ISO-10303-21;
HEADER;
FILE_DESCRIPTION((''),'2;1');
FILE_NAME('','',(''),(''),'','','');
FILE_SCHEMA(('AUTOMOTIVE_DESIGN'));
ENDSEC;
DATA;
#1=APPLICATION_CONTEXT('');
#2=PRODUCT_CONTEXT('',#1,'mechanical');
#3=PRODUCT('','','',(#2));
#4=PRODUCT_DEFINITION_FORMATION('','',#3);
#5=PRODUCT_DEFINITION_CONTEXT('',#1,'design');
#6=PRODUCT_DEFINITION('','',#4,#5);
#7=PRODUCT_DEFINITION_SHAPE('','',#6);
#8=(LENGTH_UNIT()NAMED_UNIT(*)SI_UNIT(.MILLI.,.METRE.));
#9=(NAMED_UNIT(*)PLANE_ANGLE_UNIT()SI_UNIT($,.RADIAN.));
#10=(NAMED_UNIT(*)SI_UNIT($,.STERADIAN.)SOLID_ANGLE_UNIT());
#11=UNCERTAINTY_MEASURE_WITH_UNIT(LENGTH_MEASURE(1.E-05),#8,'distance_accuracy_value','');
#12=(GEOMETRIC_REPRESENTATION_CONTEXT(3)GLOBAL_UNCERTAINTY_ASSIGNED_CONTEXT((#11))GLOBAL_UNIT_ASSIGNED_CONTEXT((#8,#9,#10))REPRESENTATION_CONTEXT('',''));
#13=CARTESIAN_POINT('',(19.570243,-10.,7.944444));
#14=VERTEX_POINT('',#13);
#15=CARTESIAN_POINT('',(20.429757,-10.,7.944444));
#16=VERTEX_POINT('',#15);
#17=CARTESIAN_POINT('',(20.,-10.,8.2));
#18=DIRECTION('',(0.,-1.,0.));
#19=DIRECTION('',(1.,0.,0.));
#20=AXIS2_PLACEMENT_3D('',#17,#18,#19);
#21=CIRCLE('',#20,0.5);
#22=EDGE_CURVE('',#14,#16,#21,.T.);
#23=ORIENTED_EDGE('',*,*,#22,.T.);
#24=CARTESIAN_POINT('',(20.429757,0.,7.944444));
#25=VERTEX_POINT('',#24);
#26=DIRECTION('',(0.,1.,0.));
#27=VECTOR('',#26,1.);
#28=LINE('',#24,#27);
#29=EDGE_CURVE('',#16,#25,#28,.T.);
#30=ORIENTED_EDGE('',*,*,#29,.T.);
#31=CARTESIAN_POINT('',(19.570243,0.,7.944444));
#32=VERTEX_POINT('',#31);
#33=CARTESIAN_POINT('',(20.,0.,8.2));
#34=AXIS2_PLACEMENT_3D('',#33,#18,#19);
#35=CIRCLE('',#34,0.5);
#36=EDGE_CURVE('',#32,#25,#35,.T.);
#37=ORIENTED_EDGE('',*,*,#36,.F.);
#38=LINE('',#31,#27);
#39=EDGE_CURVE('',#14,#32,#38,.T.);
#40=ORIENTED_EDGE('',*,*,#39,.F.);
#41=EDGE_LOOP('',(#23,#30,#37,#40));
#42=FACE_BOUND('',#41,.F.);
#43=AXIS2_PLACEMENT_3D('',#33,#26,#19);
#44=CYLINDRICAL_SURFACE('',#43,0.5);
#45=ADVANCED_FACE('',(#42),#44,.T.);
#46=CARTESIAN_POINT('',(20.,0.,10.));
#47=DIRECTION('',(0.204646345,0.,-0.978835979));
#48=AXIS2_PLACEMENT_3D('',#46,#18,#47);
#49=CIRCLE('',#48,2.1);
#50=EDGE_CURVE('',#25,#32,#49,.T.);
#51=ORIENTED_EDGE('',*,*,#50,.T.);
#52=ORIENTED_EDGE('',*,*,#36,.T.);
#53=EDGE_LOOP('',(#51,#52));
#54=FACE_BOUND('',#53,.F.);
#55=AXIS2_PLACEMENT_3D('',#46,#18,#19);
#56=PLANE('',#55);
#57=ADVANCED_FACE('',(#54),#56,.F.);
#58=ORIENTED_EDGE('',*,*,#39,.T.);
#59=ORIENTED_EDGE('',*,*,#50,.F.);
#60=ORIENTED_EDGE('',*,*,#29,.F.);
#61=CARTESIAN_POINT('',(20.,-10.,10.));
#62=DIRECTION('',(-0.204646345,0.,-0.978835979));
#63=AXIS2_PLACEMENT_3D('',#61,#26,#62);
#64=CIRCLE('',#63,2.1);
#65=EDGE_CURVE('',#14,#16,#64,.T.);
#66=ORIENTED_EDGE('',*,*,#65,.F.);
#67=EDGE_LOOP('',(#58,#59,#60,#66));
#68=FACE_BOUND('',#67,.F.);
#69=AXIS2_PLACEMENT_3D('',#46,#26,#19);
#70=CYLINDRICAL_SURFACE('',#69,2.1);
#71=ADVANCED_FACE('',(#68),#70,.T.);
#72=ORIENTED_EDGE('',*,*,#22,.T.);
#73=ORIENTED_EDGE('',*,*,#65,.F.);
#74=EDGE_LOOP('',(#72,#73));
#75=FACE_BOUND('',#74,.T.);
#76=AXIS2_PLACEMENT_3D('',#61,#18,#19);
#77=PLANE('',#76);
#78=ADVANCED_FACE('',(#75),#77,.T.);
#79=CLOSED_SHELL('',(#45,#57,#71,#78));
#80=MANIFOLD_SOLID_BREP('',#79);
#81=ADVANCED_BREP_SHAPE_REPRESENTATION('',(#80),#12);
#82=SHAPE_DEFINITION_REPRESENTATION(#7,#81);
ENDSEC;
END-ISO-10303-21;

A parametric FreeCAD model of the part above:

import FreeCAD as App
import Part
import Sketcher

doc = App.newDocument("Part")
params = doc.addObject("Spreadsheet::Sheet", "Params")
for row, (alias, value) in enumerate([
    ("sketch1_diameter", "4.2 mm"),
    ("pad1_length", "10 mm"),
    ("sketch2_diameter", "1 mm"),
    ("pad2_length", "10 mm"),
], start=1):
    params.set(f"A{row}", alias)
    params.set(f"B{row}", "=" + value)
    params.setAlias(f"B{row}", alias)

body = doc.addObject("PartDesign::Body", "Body")

sketch1 = body.newObject("Sketcher::SketchObject", "Sketch")
sketch1.AttachmentSupport = (doc.getObject("XZ_Plane"), [""])
sketch1.MapMode = "FlatFace"
sketch1.addGeometry(Part.Circle(App.Vector(10, 10, 0), App.Vector(0, 0, 1), 2.1), False)
sketch1.addConstraint(Sketcher.Constraint("Diameter", 0, 4.2))
sketch1.addConstraint(Sketcher.Constraint("DistanceX", -1, 1, 0, 3, 10.0))
sketch1.addConstraint(Sketcher.Constraint("DistanceY", -1, 1, 0, 3, 10.0))
sketch1.setExpression("Constraints[0]", "Params.sketch1_diameter")
pad1 = body.newObject("PartDesign::Pad", "Pad")
pad1.Profile = sketch1
pad1.setExpression("Length", "Params.pad1_length")
body2 = doc.addObject("PartDesign::Body", "Body001")

sketch2 = body2.newObject("Sketcher::SketchObject", "Sketch001")
sketch2.AttachmentSupport = (doc.getObject("XZ_Plane001"), [""])
sketch2.MapMode = "FlatFace"
sketch2.addGeometry(Part.Circle(App.Vector(10, 8.2, 0), App.Vector(0, 0, 1), 0.5), False)
sketch2.addConstraint(Sketcher.Constraint("Diameter", 0, 1.0))
sketch2.addConstraint(Sketcher.Constraint("DistanceX", -1, 1, 0, 3, 10.0))
sketch2.addConstraint(Sketcher.Constraint("DistanceY", -1, 1, 0, 3, 8.2))
sketch2.setExpression("Constraints[0]", "Params.sketch2_diameter")
pad2 = body2.newObject("PartDesign::Pad", "Pad001")
pad2.Profile = sketch2
pad2.setExpression("Length", "Params.pad2_length")
doc.recompute()

boolean = body2.newObject("PartDesign::Boolean", "Boolean")
boolean.Type = "Fuse"
boolean.addObjects([body])
body3 = doc.addObject("PartDesign::Body", "Body002")
doc.recompute()

body2.Placement = App.Placement(App.Vector(10, 0, 0), App.Rotation(App.Vector(0, 0, 1), 0))
boolean2 = body3.newObject("PartDesign::Boolean", "Boolean001")
boolean2.Type = "Fuse"
boolean2.addObjects([body2])

doc.recompute()
